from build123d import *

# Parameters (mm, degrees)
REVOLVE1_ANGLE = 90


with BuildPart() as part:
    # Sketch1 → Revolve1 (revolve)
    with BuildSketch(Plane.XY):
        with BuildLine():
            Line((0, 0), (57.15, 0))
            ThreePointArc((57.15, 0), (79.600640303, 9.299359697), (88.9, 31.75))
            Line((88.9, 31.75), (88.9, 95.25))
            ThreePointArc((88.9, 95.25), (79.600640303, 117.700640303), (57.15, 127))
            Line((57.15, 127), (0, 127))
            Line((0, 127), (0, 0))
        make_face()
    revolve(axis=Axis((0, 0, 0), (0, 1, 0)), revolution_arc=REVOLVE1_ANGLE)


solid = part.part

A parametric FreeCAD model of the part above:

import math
import FreeCAD as App
import Part
import Sketcher

V = App.Vector
Q = App.Units.Quantity

doc = App.newDocument("Part")
params = doc.addObject("Spreadsheet::Sheet", "Params")
for row, (alias, value) in enumerate([
    ("sketch1_height", "5 in"),
    ("sketch1_radius", "1.25 in"),
    ("sketch1_width", "2.25 in"),
    ("revolution_angle", "90 deg"),
], start=1):
    params.set(f"A{row}", alias)
    params.set(f"B{row}", "=" + value)
    params.setAlias(f"B{row}", alias)

body = doc.addObject("PartDesign::Body", "Body")

sketch1 = body.newObject("Sketcher::SketchObject", "Sketch")
sketch1.AttachmentSupport = (doc.getObject("XY_Plane"), [""])
sketch1.MapMode = "FlatFace"
sketch1.addGeometry(Part.LineSegment(V(0, 0, 0), V(57, 0, 0)), False)
sketch1.addGeometry(Part.ArcOfCircle(Part.Circle(V(57, 32, 0), V(0, 0, 1), 32), math.radians(-90), math.radians(0)), False)
sketch1.addGeometry(Part.LineSegment(V(89, 32, 0), V(89, 95, 0)), False)
sketch1.addGeometry(Part.ArcOfCircle(Part.Circle(V(57, 95, 0), V(0, 0, 1), 32), math.radians(0), math.radians(90)), False)
sketch1.addGeometry(Part.LineSegment(V(57, 127, 0), V(0, 127, 0)), False)
sketch1.addGeometry(Part.LineSegment(V(0, 127, 0), V(0, 0, 0)), False)
sketch1.addConstraint(Sketcher.Constraint("Tangent", 0, 2, 1, 1))
sketch1.addConstraint(Sketcher.Constraint("Tangent", 1, 2, 2, 1))
sketch1.addConstraint(Sketcher.Constraint("Tangent", 2, 2, 3, 1))
sketch1.addConstraint(Sketcher.Constraint("Tangent", 3, 2, 4, 1))
sketch1.addConstraint(Sketcher.Constraint("Coincident", 4, 2, 5, 1))
sketch1.addConstraint(Sketcher.Constraint("Coincident", 5, 2, 0, 1))
sketch1.addConstraint(Sketcher.Constraint("Horizontal", 0))
sketch1.addConstraint(Sketcher.Constraint("Vertical", 2))
sketch1.addConstraint(Sketcher.Constraint("Horizontal", 4))
sketch1.addConstraint(Sketcher.Constraint("Vertical", 5))
sketch1.addConstraint(Sketcher.Constraint("Coincident", 5, 2, -1, 1))
sketch1.addConstraint(Sketcher.Constraint("Equal", 1, 3))
sketch1.addConstraint(Sketcher.Constraint("DistanceY", 5, 2, 5, 1, Q("5 in")))
sketch1.addConstraint(Sketcher.Constraint("Radius", 1, Q("1.25 in")))
sketch1.addConstraint(Sketcher.Constraint("DistanceX", 0, 1, 0, 2, Q("2.25 in")))
sketch1.setExpression("Constraints[12]", "Params.sketch1_height")
sketch1.setExpression("Constraints[13]", "Params.sketch1_radius")
sketch1.setExpression("Constraints[14]", "Params.sketch1_width")
revolution = body.newObject("PartDesign::Revolution", "Revolution")
revolution.Profile = sketch1
revolution.ReferenceAxis = (sketch1, ["V_Axis"])
revolution.setExpression("Angle", "Params.revolution_angle")

doc.recompute()
